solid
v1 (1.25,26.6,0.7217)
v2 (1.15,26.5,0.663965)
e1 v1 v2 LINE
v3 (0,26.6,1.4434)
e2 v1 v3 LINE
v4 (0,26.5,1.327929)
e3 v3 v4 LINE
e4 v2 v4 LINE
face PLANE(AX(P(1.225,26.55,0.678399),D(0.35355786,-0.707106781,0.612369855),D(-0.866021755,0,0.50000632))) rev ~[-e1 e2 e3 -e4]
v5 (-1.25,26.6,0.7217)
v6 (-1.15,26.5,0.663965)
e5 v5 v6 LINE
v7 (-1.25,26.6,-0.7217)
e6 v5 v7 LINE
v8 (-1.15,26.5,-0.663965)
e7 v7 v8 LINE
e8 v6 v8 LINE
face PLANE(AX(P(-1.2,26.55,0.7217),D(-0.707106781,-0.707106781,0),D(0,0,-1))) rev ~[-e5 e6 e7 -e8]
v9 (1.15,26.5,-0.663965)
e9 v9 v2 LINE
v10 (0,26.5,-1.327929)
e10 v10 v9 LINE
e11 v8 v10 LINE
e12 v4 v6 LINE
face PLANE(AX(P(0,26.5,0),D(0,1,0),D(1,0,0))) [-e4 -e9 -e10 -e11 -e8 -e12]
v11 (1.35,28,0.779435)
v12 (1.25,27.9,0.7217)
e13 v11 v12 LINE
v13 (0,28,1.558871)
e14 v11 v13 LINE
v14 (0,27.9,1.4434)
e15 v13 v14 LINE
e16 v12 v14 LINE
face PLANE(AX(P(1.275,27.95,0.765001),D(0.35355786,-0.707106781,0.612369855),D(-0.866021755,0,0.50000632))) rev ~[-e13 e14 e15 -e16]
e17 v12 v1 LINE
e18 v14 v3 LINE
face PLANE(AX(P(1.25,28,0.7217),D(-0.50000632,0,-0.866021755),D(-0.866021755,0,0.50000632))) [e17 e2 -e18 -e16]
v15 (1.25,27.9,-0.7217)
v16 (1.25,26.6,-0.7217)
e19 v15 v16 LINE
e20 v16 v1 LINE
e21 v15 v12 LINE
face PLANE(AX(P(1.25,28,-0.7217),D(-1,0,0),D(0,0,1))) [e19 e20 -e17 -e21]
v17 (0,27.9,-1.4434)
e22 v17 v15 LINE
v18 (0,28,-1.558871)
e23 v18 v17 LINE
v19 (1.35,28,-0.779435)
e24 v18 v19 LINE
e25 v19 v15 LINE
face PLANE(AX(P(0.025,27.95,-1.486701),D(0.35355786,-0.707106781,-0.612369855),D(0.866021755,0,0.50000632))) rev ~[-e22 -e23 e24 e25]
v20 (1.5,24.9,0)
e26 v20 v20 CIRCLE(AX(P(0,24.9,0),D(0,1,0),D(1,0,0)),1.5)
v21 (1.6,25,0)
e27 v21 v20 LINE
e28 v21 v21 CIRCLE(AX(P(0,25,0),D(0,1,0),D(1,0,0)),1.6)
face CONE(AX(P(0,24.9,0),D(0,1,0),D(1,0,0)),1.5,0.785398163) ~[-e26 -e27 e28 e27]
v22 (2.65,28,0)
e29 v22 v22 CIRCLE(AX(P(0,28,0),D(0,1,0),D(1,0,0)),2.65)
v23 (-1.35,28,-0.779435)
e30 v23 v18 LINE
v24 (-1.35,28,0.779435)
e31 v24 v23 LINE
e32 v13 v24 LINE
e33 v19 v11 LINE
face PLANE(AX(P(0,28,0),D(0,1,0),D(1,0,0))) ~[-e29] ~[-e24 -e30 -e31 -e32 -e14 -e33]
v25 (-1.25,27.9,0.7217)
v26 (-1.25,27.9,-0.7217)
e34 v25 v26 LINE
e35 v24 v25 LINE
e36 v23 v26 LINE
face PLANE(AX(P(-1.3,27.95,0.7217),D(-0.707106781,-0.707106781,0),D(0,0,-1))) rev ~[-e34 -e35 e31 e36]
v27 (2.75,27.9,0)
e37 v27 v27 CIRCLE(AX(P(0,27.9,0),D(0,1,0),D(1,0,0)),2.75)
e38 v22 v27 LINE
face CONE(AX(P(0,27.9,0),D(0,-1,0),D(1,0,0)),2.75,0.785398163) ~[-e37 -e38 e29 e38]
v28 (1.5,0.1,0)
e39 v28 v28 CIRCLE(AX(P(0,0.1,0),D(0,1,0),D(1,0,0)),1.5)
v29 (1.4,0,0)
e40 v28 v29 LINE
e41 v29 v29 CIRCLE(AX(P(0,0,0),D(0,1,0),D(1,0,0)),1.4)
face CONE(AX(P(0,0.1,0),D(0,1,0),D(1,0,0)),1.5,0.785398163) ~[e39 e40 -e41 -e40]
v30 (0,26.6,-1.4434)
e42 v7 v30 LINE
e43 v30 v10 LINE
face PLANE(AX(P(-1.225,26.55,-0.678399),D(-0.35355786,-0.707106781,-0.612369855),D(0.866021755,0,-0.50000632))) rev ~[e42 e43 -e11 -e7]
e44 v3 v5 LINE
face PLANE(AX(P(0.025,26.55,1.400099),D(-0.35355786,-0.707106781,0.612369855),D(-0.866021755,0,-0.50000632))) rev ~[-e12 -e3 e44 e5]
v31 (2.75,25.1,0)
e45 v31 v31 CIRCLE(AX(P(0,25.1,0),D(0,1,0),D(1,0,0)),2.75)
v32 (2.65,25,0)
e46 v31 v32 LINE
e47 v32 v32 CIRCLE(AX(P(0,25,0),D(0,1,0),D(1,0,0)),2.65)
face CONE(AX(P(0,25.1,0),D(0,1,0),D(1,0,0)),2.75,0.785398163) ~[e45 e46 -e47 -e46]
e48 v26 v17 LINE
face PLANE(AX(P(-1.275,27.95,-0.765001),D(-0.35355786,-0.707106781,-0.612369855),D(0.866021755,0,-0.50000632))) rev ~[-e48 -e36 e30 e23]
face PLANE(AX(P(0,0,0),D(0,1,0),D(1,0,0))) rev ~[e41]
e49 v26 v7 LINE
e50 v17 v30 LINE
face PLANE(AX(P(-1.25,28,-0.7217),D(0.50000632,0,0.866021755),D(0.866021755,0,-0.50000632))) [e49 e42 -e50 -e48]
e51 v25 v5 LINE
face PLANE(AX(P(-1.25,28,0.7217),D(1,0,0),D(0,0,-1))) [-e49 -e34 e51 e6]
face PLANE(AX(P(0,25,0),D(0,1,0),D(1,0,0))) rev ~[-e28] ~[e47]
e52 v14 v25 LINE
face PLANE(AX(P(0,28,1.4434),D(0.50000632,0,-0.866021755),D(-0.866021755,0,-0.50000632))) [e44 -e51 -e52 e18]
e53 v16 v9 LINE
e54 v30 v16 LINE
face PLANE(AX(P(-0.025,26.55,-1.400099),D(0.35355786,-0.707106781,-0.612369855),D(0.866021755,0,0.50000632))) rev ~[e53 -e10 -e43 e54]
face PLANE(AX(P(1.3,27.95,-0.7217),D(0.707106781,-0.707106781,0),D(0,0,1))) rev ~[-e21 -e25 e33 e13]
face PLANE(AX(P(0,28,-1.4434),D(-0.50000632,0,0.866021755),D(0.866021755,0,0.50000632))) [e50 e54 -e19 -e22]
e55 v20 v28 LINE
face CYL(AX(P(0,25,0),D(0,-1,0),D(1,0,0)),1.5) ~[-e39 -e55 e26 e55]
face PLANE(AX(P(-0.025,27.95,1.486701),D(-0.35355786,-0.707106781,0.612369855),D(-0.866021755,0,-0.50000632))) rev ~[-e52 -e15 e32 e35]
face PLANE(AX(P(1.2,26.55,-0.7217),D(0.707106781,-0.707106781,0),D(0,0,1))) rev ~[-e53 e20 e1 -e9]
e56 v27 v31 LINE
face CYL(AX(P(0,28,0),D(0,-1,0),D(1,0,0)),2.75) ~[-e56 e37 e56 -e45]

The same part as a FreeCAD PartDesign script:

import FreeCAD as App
import Part
import Sketcher
from FreeCAD import Vector
Q = App.Units.Quantity


def edges_at(feature, points):
    """Names of the edges that pass closest to the given points."""
    edges = feature.Shape.Edges
    near = lambda p: min(range(len(edges)), key=lambda i: edges[i].distToShape(Part.Vertex(*p))[0])
    return sorted({f"Edge{near(p) + 1}" for p in points})


def add_polygon(sketch, points):
    """Adds a closed chain of lines whose ends are joined by coincident constraints."""
    first, n = sketch.GeometryCount, len(points)
    for a, b in zip(points, points[1:] + points[:1]):
        sketch.addGeometry(Part.LineSegment(App.Vector(*a, 0), App.Vector(*b, 0)), False)
    for i in range(n):
        sketch.addConstraint(Sketcher.Constraint("Coincident", first + i, 2, first + (i + 1) % n, 1))

doc = App.newDocument("Part")
body = doc.addObject("PartDesign::Body", "Body")

# Sketch on XY plane
sketch1 = body.newObject("Sketcher::SketchObject", "Sketch")
sketch1.AttachmentSupport = (doc.getObject("XY_Plane"), [""])
sketch1.MapMode = "FlatFace"
add_polygon(sketch1, [(2.8, 28), (0, 28), (0, 0), (1.5, 0), (1.5, 25), (2.8, 25)])  # lines 0-5
sketch1.addConstraint(Sketcher.Constraint("Horizontal", 0))
sketch1.addConstraint(Sketcher.Constraint("Vertical", 1))
sketch1.addConstraint(Sketcher.Constraint("Horizontal", 2))
sketch1.addConstraint(Sketcher.Constraint("Vertical", 3))
sketch1.addConstraint(Sketcher.Constraint("Horizontal", 4))
sketch1.addConstraint(Sketcher.Constraint("Vertical", 5))
sketch1.addConstraint(Sketcher.Constraint("Coincident", 1, 2, -1, 1))
sketch1.addConstraint(Sketcher.Constraint("DistanceY", 3, 1, 3, 2, Q("25 mm")))
sketch1.addConstraint(Sketcher.Constraint("DistanceY", 5, 1, 5, 2, Q("3 mm")))
sketch1.addConstraint(Sketcher.Constraint("DistanceX", 2, 1, 2, 2, Q("1.5 mm")))
sketch1.addConstraint(Sketcher.Constraint("DistanceX", 0, 2, 0, 1, Q("2.75 mm")))
revolution = body.newObject("PartDesign::Revolution", "Revolution")
revolution.Profile = sketch1
revolution.ReferenceAxis = (sketch1, ["V_Axis"])
revolution.Angle = 360

# Sketch on XZ plane
sketch2 = body.newObject("Sketcher::SketchObject", "Sketch001")
sketch2.AttachmentSupport = (doc.getObject("XZ_Plane"), [""])
sketch2.MapMode = "FlatFace"
sketch2.AttachmentOffset = App.Placement(Vector(0, 0, -28), App.Rotation())
add_polygon(sketch2, [(0, 1.4), (1.2, 0.7), (1.2, -0.7), (0, -1.4), (-1.2, -0.7), (-1.2, 0.7)])  # lines 0-5
sketch2.addConstraint(Sketcher.Constraint("Vertical", 1))
sketch2.addConstraint(Sketcher.Constraint("Vertical", 4))
sketch2.addConstraint(Sketcher.Constraint("Symmetric", 0, 2, 3, 2, -1, 1))
sketch2.addConstraint(Sketcher.Constraint("Symmetric", 2, 2, 5, 2, -1, 1))
sketch2.addConstraint(Sketcher.Constraint("PointOnObject", 2, 2, -2))
sketch2.addConstraint(Sketcher.Constraint("Parallel", 2, 5))
sketch2.addConstraint(Sketcher.Constraint("Horizontal", 1, 2, 3, 2))
sketch2.addConstraint(Sketcher.Constraint("DistanceX", 3, 2, 1, 2, Q("2.5 mm")))
sketch2.addConstraint(Sketcher.Constraint("Angle", 0, Q("-30.0004 deg")))
sketch2.addConstraint(Sketcher.Constraint("DistanceY", 1, 2, 1, 1, Q("1.4434 mm")))
pocket1 = body.newObject("PartDesign::Pocket", "Pocket")
pocket1.Profile = sketch2
pocket1.Length = 1.5
pocket1.Reversed = True
doc.recompute()

chamfer = body.newObject("PartDesign::Chamfer", "Chamfer")
chamfer.Base = (pocket1, edges_at(pocket1, [
    (0.625, 28, 1.083),
    (1.25, 28, 0),
    (1.25, 26.5, 0),
    (0.625, 28, -1.083),
    (0.625, 26.5, -1.083),
    (-0.625, 28, -1.083),
    (-0.625, 26.5, -1.083),
    (-1.25, 26.5, 0),
    (-1.25, 28, 0),
    (-0.625, 26.5, 1.083),
    (-0.625, 28, 1.083),
    (0.625, 26.5, 1.083),
    (-2.75, 28, 0),
    (-2.75, 25, 0),
    (-1.5, 25, 0),
    (-1.5, 0, 0),
]))
chamfer.Size = 0.1

doc.recompute()
